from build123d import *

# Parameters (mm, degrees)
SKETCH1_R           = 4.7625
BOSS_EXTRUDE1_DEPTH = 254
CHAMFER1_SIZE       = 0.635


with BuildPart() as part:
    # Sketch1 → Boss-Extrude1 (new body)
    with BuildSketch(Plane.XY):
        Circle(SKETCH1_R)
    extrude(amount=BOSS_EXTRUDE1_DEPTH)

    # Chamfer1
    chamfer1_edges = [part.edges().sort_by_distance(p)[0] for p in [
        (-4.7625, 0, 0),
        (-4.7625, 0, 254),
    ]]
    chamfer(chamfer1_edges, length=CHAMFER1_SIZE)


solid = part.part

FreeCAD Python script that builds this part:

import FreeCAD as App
import Part
import Sketcher

V = App.Vector
Q = App.Units.Quantity


def edges_at(feature, points):
    """Names of the edges that pass closest to the given points."""
    edges = feature.Shape.Edges
    near = lambda p: min(range(len(edges)), key=lambda i: edges[i].distToShape(Part.Vertex(*p))[0])
    return sorted({f"Edge{near(p) + 1}" for p in points})

doc = App.newDocument("Part")
body = doc.addObject("PartDesign::Body", "Body")

sketch1 = body.newObject("Sketcher::SketchObject", "Sketch")
sketch1.AttachmentSupport = (doc.getObject("XY_Plane"), [""])
sketch1.MapMode = "FlatFace"
sketch1.addGeometry(Part.Circle(V(0, 0, 0), V(0, 0, 1), 4.7625), False)
sketch1.addConstraint([
    Sketcher.Constraint("Coincident", 0, 3, -1, 1),
    Sketcher.Constraint("Diameter", 0, Q("0.375 in")),
])
pad1 = body.newObject("PartDesign::Pad", "Pad")
pad1.Profile = sketch1
pad1.Length = Q("10 in")
doc.recompute()

chamfer = body.newObject("PartDesign::Chamfer", "Chamfer")
chamfer.Base = (pad1, edges_at(pad1, [(-4.763, 0, 0), (-4.763, 0, 254)]))
chamfer.Size = Q("0.025 in")

doc.recompute()
